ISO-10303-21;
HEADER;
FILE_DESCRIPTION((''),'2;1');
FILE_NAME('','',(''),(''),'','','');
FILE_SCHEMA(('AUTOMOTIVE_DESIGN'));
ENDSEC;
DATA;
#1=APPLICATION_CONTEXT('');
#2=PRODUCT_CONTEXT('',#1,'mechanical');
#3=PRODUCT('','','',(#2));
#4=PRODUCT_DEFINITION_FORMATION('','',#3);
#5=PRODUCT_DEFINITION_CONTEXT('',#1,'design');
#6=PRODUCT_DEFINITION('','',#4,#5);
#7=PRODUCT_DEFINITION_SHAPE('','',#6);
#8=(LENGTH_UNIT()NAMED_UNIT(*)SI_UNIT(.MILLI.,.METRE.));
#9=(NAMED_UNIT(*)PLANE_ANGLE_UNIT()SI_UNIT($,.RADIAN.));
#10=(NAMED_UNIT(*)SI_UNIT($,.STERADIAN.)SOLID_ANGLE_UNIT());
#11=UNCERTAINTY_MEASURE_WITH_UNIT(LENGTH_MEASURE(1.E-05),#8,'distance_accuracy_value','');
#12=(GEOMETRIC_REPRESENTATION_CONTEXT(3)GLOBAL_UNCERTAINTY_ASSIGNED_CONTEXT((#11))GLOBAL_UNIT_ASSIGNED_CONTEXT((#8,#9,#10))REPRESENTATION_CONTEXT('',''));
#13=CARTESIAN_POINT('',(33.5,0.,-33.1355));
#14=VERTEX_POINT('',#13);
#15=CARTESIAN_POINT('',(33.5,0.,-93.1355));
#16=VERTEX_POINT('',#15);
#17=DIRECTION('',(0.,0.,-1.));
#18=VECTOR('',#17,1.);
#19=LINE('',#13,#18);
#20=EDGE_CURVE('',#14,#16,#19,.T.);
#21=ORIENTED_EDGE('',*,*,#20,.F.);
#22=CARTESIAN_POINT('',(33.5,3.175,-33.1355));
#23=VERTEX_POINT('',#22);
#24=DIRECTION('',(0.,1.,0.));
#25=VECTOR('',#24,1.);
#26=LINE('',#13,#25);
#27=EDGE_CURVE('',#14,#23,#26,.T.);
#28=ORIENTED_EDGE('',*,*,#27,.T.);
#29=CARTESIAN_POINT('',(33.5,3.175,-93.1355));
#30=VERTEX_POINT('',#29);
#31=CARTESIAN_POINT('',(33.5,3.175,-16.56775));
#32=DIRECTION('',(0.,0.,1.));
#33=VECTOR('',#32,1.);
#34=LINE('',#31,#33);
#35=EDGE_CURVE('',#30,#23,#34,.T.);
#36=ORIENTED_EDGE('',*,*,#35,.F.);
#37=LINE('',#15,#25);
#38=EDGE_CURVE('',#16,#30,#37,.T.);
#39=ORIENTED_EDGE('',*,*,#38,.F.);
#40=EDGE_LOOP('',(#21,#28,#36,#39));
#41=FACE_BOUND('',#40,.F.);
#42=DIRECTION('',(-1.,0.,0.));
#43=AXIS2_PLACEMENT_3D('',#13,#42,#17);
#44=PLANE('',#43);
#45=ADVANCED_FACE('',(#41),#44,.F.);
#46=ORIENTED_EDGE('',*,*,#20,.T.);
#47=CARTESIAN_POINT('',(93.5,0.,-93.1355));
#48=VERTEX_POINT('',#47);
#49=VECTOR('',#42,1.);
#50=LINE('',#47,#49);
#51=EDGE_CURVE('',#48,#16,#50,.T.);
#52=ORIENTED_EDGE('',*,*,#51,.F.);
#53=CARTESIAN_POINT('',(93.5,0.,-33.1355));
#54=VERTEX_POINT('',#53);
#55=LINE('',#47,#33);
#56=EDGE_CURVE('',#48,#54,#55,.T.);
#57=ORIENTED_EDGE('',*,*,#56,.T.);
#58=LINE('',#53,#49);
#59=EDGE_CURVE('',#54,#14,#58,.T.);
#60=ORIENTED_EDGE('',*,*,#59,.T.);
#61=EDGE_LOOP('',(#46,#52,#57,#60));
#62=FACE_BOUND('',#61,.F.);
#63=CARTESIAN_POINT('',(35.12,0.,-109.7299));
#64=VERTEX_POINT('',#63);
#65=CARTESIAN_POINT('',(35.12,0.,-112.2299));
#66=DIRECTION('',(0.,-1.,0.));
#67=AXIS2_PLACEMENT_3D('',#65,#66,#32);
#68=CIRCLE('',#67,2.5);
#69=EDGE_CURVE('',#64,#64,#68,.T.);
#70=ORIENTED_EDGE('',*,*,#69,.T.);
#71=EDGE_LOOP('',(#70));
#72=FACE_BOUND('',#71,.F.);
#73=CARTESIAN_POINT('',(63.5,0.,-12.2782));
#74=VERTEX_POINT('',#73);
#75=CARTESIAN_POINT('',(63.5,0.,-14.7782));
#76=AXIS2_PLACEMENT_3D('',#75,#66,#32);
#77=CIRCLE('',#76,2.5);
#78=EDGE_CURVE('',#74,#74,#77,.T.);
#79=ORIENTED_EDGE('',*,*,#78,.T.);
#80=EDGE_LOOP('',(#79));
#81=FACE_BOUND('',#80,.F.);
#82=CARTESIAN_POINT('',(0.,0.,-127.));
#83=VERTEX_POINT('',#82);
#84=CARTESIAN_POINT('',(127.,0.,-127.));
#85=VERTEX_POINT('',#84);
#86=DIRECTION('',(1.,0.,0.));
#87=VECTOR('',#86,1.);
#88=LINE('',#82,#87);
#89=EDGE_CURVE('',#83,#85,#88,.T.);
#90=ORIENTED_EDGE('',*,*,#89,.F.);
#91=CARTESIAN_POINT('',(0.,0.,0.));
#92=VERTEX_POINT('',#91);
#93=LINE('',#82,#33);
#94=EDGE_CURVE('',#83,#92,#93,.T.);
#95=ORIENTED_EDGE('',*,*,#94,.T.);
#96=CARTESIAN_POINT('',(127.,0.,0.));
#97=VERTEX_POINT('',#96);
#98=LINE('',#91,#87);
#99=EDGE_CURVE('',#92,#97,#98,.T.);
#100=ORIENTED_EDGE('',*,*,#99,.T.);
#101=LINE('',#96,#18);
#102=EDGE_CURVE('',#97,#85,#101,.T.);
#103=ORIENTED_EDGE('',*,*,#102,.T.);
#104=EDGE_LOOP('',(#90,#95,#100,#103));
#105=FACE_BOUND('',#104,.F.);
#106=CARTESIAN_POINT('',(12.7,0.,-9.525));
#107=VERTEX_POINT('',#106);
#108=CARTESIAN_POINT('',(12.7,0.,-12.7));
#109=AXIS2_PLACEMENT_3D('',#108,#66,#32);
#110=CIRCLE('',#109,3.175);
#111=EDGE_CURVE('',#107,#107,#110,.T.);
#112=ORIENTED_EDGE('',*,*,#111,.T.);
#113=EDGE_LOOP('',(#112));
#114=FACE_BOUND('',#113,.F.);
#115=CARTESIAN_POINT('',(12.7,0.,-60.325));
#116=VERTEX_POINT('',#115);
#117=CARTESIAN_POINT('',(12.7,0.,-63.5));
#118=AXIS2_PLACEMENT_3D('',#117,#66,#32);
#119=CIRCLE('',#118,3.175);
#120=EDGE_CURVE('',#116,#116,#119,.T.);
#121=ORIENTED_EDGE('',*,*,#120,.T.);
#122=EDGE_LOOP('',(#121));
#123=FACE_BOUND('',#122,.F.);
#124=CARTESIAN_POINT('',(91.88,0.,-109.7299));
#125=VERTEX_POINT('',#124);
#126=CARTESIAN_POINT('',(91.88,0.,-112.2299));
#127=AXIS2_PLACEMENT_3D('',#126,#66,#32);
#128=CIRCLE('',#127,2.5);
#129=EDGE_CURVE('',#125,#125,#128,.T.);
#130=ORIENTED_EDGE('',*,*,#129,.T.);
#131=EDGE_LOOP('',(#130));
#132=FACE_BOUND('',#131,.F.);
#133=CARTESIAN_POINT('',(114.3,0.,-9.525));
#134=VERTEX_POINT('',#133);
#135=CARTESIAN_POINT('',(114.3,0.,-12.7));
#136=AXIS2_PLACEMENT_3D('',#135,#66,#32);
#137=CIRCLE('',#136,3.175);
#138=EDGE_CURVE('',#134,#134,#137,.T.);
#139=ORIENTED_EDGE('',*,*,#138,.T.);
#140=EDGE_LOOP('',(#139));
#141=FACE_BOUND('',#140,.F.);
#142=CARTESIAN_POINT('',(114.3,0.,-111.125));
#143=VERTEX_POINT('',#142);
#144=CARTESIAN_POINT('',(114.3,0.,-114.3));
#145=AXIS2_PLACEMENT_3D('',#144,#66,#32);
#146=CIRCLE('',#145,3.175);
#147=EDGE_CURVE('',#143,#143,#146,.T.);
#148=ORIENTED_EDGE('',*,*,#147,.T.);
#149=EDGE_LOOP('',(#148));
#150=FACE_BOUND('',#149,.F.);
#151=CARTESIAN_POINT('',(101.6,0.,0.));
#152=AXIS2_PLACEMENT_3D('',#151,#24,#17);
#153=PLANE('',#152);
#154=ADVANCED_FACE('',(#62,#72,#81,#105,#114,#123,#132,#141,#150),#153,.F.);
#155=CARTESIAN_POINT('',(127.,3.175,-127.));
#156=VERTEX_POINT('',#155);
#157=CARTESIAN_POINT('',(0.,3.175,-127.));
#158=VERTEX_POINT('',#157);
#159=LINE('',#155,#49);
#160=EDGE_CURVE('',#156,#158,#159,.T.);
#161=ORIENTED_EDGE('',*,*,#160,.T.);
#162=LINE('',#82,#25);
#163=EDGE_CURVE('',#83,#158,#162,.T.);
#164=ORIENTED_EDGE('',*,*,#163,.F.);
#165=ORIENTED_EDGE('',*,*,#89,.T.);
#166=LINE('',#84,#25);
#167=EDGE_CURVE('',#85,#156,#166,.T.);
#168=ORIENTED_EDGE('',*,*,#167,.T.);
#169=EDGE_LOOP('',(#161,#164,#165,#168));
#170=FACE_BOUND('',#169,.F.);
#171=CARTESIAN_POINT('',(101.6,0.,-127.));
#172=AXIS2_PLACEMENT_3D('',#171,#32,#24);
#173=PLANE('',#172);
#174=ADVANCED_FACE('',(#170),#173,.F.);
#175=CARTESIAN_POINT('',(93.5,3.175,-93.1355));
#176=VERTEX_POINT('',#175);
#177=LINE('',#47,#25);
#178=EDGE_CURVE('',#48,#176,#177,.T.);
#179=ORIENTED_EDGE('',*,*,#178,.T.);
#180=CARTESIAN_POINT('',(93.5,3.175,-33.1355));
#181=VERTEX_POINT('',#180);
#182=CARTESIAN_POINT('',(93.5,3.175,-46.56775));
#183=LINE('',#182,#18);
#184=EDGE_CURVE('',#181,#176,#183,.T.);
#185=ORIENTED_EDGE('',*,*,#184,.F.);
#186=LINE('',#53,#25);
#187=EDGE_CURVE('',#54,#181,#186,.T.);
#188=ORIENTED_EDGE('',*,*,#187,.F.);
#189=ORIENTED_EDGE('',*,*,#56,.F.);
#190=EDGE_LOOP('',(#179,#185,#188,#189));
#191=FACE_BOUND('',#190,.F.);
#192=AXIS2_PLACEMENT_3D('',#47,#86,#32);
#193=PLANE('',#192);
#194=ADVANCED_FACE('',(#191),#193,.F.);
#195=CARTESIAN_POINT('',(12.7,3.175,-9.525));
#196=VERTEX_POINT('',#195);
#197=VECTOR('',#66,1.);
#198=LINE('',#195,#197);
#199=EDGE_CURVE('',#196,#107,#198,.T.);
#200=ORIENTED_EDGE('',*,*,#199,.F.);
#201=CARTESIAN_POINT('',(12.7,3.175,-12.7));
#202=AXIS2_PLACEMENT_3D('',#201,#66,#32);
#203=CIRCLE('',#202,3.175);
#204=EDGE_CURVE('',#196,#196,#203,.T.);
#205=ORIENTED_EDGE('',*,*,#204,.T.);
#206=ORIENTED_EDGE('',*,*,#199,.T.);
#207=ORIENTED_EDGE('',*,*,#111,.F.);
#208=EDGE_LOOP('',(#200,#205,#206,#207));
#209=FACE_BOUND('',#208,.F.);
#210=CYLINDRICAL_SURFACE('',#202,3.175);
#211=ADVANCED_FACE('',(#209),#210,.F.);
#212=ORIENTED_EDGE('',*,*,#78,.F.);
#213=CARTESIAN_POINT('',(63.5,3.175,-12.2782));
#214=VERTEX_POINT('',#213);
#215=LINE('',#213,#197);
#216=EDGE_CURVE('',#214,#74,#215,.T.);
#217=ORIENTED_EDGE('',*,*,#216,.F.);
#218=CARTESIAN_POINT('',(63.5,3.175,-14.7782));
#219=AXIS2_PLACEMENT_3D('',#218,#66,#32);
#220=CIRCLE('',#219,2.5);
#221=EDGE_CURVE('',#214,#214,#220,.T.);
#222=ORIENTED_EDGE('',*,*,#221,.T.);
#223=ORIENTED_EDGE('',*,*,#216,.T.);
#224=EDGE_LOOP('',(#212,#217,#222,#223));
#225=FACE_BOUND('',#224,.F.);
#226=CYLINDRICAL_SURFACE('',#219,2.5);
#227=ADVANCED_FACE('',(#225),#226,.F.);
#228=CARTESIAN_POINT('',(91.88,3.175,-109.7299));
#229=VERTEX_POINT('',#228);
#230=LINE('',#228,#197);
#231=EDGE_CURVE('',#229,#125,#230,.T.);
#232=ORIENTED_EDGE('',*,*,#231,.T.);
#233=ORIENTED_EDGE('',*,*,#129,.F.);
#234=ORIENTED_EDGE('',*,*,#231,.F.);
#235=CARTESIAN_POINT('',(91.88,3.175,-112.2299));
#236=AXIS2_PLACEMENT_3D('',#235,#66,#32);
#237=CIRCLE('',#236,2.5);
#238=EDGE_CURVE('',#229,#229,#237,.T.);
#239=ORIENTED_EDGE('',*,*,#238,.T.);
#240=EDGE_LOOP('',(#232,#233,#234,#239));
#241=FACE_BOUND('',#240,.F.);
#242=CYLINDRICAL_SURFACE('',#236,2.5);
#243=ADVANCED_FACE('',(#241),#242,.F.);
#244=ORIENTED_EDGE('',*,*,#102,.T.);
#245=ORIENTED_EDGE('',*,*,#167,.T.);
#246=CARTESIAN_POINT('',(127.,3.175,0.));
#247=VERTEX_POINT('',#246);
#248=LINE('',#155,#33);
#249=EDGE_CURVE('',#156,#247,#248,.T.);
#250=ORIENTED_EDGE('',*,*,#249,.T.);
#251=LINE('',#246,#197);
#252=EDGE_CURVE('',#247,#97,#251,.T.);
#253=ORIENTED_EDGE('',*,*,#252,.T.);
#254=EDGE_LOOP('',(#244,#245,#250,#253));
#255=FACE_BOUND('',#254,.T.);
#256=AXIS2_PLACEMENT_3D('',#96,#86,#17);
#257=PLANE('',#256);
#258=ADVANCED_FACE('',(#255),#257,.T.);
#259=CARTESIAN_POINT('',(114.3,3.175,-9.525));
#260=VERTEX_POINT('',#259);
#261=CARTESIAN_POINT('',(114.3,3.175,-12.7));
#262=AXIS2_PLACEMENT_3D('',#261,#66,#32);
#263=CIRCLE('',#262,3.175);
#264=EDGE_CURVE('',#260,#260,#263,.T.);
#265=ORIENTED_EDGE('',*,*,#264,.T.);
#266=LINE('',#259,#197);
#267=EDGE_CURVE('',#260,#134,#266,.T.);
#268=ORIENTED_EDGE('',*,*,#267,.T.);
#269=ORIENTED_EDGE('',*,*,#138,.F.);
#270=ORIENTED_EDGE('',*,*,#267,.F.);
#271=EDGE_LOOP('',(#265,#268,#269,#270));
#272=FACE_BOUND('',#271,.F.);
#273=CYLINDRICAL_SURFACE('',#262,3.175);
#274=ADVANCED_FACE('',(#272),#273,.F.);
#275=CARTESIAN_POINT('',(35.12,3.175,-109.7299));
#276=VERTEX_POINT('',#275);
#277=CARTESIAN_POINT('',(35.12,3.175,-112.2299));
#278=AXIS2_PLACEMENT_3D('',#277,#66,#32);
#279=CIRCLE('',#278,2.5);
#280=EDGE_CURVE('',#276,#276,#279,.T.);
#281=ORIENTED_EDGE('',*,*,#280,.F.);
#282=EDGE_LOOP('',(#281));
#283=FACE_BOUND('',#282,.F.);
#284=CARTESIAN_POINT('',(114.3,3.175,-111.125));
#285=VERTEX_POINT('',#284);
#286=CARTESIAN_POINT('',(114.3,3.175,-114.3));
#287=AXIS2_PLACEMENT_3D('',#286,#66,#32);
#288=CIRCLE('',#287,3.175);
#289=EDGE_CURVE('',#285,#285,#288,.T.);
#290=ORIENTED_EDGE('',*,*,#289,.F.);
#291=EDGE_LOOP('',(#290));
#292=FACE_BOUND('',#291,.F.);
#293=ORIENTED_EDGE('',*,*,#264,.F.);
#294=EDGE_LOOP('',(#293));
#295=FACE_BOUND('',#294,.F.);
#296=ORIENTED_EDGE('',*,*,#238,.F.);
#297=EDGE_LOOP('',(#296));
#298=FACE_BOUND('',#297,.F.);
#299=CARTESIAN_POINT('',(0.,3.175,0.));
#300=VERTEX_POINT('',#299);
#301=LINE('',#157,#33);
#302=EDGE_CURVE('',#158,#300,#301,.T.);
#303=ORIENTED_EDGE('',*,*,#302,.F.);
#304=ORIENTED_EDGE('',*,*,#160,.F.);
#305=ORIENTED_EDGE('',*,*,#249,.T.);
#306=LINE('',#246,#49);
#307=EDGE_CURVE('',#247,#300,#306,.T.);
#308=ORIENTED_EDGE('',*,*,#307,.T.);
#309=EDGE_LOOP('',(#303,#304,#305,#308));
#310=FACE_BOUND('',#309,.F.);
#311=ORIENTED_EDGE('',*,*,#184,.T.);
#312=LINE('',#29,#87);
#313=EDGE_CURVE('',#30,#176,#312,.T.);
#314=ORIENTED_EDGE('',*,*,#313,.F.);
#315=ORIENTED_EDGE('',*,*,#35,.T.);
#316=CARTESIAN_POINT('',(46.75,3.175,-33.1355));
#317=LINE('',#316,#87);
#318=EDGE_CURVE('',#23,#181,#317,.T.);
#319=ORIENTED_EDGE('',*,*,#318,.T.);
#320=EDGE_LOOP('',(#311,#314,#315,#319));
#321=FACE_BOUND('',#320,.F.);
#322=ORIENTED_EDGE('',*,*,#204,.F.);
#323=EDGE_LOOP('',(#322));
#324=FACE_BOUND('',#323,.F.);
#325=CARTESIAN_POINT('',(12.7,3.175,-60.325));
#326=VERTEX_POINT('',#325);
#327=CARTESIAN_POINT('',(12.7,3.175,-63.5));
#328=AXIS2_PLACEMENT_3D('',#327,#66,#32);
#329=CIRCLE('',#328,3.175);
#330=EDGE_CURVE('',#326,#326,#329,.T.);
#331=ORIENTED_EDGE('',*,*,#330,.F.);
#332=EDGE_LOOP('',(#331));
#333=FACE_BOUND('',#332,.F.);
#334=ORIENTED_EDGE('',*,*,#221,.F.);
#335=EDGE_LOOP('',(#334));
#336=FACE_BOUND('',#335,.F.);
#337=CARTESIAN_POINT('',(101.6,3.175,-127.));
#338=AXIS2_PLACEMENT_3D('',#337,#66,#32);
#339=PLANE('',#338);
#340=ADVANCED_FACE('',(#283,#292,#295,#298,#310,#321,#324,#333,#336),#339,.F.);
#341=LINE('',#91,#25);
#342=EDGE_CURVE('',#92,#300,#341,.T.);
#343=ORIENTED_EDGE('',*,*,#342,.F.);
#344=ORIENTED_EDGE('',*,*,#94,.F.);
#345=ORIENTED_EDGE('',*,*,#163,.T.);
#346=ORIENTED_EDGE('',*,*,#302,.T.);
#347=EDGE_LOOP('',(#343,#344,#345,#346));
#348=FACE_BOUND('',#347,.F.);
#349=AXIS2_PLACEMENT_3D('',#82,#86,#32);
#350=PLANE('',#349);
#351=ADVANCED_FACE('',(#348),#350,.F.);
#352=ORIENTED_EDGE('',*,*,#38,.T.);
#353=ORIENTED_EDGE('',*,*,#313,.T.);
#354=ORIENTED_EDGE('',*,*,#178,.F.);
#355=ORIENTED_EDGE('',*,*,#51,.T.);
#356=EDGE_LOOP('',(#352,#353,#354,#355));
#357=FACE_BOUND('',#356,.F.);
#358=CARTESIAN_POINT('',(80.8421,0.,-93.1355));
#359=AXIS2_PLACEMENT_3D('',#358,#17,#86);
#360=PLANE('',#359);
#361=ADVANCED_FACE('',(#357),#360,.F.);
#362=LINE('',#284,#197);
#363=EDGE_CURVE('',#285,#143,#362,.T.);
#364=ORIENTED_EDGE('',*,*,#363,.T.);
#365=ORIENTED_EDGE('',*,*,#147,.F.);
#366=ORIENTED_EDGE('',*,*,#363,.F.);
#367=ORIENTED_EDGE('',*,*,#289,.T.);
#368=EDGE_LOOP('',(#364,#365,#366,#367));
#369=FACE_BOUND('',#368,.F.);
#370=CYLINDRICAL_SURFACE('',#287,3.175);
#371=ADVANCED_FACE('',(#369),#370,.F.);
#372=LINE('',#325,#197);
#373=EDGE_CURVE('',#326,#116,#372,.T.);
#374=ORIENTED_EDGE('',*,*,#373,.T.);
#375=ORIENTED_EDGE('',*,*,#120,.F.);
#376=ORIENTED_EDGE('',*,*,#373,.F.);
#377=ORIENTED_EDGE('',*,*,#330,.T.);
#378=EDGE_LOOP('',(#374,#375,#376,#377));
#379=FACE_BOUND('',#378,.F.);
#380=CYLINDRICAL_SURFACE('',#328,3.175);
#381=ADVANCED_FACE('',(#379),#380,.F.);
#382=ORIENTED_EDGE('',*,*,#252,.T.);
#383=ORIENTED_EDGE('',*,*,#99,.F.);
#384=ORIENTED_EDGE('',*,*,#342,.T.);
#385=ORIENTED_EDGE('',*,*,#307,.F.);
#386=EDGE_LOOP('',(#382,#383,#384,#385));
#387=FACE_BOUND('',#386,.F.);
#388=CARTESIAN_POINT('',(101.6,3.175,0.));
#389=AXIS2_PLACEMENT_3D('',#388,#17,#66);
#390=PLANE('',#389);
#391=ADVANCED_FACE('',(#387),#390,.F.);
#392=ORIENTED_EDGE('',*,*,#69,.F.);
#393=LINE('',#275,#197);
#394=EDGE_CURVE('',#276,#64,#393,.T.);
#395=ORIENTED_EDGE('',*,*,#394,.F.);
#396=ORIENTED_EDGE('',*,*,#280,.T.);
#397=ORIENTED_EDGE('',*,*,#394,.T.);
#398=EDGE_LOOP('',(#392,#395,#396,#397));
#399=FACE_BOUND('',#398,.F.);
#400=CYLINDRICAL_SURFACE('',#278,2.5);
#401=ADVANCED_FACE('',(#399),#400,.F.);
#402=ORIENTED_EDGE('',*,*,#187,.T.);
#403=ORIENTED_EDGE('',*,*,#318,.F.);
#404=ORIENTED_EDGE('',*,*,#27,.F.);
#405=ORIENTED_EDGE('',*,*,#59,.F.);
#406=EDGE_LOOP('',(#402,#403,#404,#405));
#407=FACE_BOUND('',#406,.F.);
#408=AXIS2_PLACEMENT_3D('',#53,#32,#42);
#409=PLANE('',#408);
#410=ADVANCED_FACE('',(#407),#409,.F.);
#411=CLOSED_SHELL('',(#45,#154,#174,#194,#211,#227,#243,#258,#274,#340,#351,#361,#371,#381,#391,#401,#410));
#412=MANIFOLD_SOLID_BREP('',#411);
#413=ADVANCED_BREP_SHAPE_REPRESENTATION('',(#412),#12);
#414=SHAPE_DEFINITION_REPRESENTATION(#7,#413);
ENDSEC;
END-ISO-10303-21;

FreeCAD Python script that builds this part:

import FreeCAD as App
import Part
import Sketcher
Q = App.Units.Quantity


def add_polygon(sketch, points):
    """Adds a closed chain of lines whose ends are joined by coincident constraints."""
    first, n = sketch.GeometryCount, len(points)
    for a, b in zip(points, points[1:] + points[:1]):
        sketch.addGeometry(Part.LineSegment(App.Vector(*a, 0), App.Vector(*b, 0)), False)
    for i in range(n):
        sketch.addConstraint(Sketcher.Constraint("Coincident", first + i, 2, first + (i + 1) % n, 1))

doc = App.newDocument("Part")
params = doc.addObject("Spreadsheet::Sheet", "Params")
for row, (alias, value) in enumerate([
    ("sketch1_width", "4 in"),
    ("sketch1_height", "5 in"),
    ("pad1_length", "0.125 in"),
    ("hole_diameter", "5 mm"),
    ("pocket1_length", "1 in"),
    ("sketch4_height", "5 in"),
    ("sketch4_width", "0.125 in"),
    ("pad2_length", "1 in"),
    ("sketch5_diameter", "0.25 in"),
    ("hole2_diameter", "0.25 in"),
], start=1):
    params.set(f"A{row}", alias)
    params.set(f"B{row}", "=" + value)
    params.setAlias(f"B{row}", alias)

body = doc.addObject("PartDesign::Body", "Body")

# Sketch on XZ plane
sketch1 = body.newObject("Sketcher::SketchObject", "Sketch")
sketch1.AttachmentSupport = (doc.getObject("XZ_Plane"), [""])
sketch1.MapMode = "FlatFace"
add_polygon(sketch1, [(0, -127), (0, 0), (102, 0), (102, -127)])  # lines 0-3
sketch1.addConstraint(Sketcher.Constraint("Vertical", 0))
sketch1.addConstraint(Sketcher.Constraint("Horizontal", 1))
sketch1.addConstraint(Sketcher.Constraint("Vertical", 2))
sketch1.addConstraint(Sketcher.Constraint("Horizontal", 3))
sketch1.addConstraint(Sketcher.Constraint("Coincident", 0, 2, -1, 1))
sketch1.addConstraint(Sketcher.Constraint("DistanceX", 1, 1, 1, 2, Q("4 in")))
sketch1.addConstraint(Sketcher.Constraint("DistanceY", 0, 1, 0, 2, Q("5 in")))
sketch1.setExpression("Constraints[9]", "Params.sketch1_width")
sketch1.setExpression("Constraints[10]", "Params.sketch1_height")
pad1 = body.newObject("PartDesign::Pad", "Pad")
pad1.Profile = sketch1
pad1.setExpression("Length", "Params.pad1_length")
pad1.Reversed = True

# Sketch on XZ plane
sketch2 = body.newObject("Sketcher::SketchObject", "Sketch001")
sketch2.AttachmentSupport = (doc.getObject("XZ_Plane"), [""])
sketch2.MapMode = "FlatFace"
sketch2.AttachmentOffset = App.Placement(App.Vector(0, 0, -0.125 * 25.4), App.Rotation())
sketch2.addGeometry(Part.Circle(App.Vector(35.1, -112.2, 0), App.Vector(0, 0, 1), 2.5), False)
sketch2.addGeometry(Part.Circle(App.Vector(91.9, -112.2, 0), App.Vector(0, 0, 1), 2.5), False)
sketch2.addGeometry(Part.Circle(App.Vector(63.5, -14.8, 0), App.Vector(0, 0, 1), 2.5), False)
sketch2.addConstraint(Sketcher.Constraint("Equal", 0, 1))
sketch2.addConstraint(Sketcher.Constraint("Equal", 1, 2))
sketch2.addConstraint(Sketcher.Constraint("Horizontal", 0, 3, 1, 3))
sketch2.addConstraint(Sketcher.Constraint("DistanceX", -1, 1, 2, 3, Q("2.5 in")))
sketch2.addConstraint(Sketcher.Constraint("Diameter", 0, Q("5 mm")))
sketch2.addConstraint(Sketcher.Constraint("DistanceY", 0, 3, -1, 1, Q("4.4185 in")))
sketch2.addConstraint(Sketcher.Constraint("DistanceX", -1, 1, 0, 3, Q("35.12 mm")))
sketch2.addConstraint(Sketcher.Constraint("DistanceX", -1, 1, 1, 3, Q("91.88 mm")))
sketch2.addConstraint(Sketcher.Constraint("DistanceY", 2, 3, -1, 1, Q("14.7782 mm")))
doc.recompute()
hole = body.newObject("PartDesign::Hole", "Hole")
hole.Profile = sketch2
hole.ThreadType = "None"
hole.setExpression("Diameter", "Params.hole_diameter")
hole.DepthType = "ThroughAll"
hole.Reversed = True

# Sketch on XZ plane
sketch3 = body.newObject("Sketcher::SketchObject", "Sketch002")
sketch3.AttachmentSupport = (doc.getObject("XZ_Plane"), [""])
sketch3.MapMode = "FlatFace"
add_polygon(sketch3, [(34, -93), (94, -93), (94, -33), (34, -33)])  # lines 0-3
sketch3.addConstraint(Sketcher.Constraint("Horizontal", 0))
sketch3.addConstraint(Sketcher.Constraint("Vertical", 1))
sketch3.addConstraint(Sketcher.Constraint("Horizontal", 2))
sketch3.addConstraint(Sketcher.Constraint("Vertical", 3))
sketch3.addConstraint(Sketcher.Constraint("Equal", 2, 1))
sketch3.addConstraint(Sketcher.Constraint("DistanceX", 0, 1, 0, 2, Q("2.3622 in")))
sketch3.addConstraint(Sketcher.Constraint("DistanceX", -1, 1, 0, 2, Q("3.6811 in")))
sketch3.addConstraint(Sketcher.Constraint("DistanceY", 0, 2, -1, 1, Q("93.1355 mm")))
pocket1 = body.newObject("PartDesign::Pocket", "Pocket")
pocket1.Profile = sketch3
pocket1.setExpression("Length", "Params.pocket1_length")

# Sketch on YZ plane
sketch4 = body.newObject("Sketcher::SketchObject", "Sketch003")
sketch4.AttachmentSupport = (doc.getObject("YZ_Plane"), [""])
sketch4.MapMode = "FlatFace"
sketch4.AttachmentOffset = App.Placement(App.Vector(0, 0, 4 * 25.4), App.Rotation())
add_polygon(sketch4, [(3.2, 0), (0, 0), (0, -127), (3.2, -127)])  # lines 0-3
sketch4.addConstraint(Sketcher.Constraint("Horizontal", 0))
sketch4.addConstraint(Sketcher.Constraint("Vertical", 1))
sketch4.addConstraint(Sketcher.Constraint("Horizontal", 2))
sketch4.addConstraint(Sketcher.Constraint("Vertical", 3))
sketch4.addConstraint(Sketcher.Constraint("Coincident", 0, 2, -1, 1))
sketch4.addConstraint(Sketcher.Constraint("DistanceY", 1, 2, 1, 1, Q("5 in")))
sketch4.addConstraint(Sketcher.Constraint("DistanceX", 0, 2, 0, 1, Q("0.125 in")))
sketch4.setExpression("Constraints[9]", "Params.sketch4_height")
sketch4.setExpression("Constraints[10]", "Params.sketch4_width")
pad2 = body.newObject("PartDesign::Pad", "Pad001")
pad2.Profile = sketch4
pad2.setExpression("Length", "Params.pad2_length")

# Sketch on XZ plane
sketch5 = body.newObject("Sketcher::SketchObject", "Sketch004")
sketch5.AttachmentSupport = (doc.getObject("XZ_Plane"), [""])
sketch5.MapMode = "FlatFace"
sketch5.AttachmentOffset = App.Placement(App.Vector(0, 0, -0.125 * 25.4), App.Rotation())
sketch5.addGeometry(Part.Circle(App.Vector(12.7, -63.5, 0), App.Vector(0, 0, 1), 3.2), False)
sketch5.addGeometry(Part.Circle(App.Vector(114.3, -114.3, 0), App.Vector(0, 0, 1), 3.2), False)
sketch5.addGeometry(Part.Circle(App.Vector(114.3, -12.7, 0), App.Vector(0, 0, 1), 3.2), False)
sketch5.addGeometry(Part.Circle(App.Vector(12.7, -12.7, 0), App.Vector(0, 0, 1), 3.2), False)
sketch5.addConstraint(Sketcher.Constraint("Equal", 0, 1))
sketch5.addConstraint(Sketcher.Constraint("Equal", 1, 2))
sketch5.addConstraint(Sketcher.Constraint("Equal", 2, 3))
sketch5.addConstraint(Sketcher.Constraint("Horizontal", 2, 3, 3, 3))
sketch5.addConstraint(Sketcher.Constraint("Vertical", 1, 3, 2, 3))
sketch5.addConstraint(Sketcher.Constraint("Vertical", 0, 3, 3, 3))
sketch5.addConstraint(Sketcher.Constraint("Diameter", 0, Q("0.25 in")))
sketch5.addConstraint(Sketcher.Constraint("DistanceX", 0, 3, 1, 3, Q("4 in")))
sketch5.addConstraint(Sketcher.Constraint("DistanceY", 1, 3, 0, 3, Q("2 in")))
sketch5.addConstraint(Sketcher.Constraint("DistanceY", 1, 3, 2, 3, Q("4 in")))
sketch5.addConstraint(Sketcher.Constraint("DistanceX", -1, 1, 0, 3, Q("0.5 in")))
sketch5.addConstraint(Sketcher.Constraint("DistanceY", 0, 3, -1, 1, Q("2.5 in")))
sketch5.setExpression("Constraints[6]", "Params.sketch5_diameter")
doc.recompute()
hole2 = body.newObject("PartDesign::Hole", "Hole001")
hole2.Profile = sketch5
hole2.ThreadType = "None"
hole2.setExpression("Diameter", "Params.hole2_diameter")
hole2.DepthType = "ThroughAll"
hole2.Reversed = True

doc.recompute()
